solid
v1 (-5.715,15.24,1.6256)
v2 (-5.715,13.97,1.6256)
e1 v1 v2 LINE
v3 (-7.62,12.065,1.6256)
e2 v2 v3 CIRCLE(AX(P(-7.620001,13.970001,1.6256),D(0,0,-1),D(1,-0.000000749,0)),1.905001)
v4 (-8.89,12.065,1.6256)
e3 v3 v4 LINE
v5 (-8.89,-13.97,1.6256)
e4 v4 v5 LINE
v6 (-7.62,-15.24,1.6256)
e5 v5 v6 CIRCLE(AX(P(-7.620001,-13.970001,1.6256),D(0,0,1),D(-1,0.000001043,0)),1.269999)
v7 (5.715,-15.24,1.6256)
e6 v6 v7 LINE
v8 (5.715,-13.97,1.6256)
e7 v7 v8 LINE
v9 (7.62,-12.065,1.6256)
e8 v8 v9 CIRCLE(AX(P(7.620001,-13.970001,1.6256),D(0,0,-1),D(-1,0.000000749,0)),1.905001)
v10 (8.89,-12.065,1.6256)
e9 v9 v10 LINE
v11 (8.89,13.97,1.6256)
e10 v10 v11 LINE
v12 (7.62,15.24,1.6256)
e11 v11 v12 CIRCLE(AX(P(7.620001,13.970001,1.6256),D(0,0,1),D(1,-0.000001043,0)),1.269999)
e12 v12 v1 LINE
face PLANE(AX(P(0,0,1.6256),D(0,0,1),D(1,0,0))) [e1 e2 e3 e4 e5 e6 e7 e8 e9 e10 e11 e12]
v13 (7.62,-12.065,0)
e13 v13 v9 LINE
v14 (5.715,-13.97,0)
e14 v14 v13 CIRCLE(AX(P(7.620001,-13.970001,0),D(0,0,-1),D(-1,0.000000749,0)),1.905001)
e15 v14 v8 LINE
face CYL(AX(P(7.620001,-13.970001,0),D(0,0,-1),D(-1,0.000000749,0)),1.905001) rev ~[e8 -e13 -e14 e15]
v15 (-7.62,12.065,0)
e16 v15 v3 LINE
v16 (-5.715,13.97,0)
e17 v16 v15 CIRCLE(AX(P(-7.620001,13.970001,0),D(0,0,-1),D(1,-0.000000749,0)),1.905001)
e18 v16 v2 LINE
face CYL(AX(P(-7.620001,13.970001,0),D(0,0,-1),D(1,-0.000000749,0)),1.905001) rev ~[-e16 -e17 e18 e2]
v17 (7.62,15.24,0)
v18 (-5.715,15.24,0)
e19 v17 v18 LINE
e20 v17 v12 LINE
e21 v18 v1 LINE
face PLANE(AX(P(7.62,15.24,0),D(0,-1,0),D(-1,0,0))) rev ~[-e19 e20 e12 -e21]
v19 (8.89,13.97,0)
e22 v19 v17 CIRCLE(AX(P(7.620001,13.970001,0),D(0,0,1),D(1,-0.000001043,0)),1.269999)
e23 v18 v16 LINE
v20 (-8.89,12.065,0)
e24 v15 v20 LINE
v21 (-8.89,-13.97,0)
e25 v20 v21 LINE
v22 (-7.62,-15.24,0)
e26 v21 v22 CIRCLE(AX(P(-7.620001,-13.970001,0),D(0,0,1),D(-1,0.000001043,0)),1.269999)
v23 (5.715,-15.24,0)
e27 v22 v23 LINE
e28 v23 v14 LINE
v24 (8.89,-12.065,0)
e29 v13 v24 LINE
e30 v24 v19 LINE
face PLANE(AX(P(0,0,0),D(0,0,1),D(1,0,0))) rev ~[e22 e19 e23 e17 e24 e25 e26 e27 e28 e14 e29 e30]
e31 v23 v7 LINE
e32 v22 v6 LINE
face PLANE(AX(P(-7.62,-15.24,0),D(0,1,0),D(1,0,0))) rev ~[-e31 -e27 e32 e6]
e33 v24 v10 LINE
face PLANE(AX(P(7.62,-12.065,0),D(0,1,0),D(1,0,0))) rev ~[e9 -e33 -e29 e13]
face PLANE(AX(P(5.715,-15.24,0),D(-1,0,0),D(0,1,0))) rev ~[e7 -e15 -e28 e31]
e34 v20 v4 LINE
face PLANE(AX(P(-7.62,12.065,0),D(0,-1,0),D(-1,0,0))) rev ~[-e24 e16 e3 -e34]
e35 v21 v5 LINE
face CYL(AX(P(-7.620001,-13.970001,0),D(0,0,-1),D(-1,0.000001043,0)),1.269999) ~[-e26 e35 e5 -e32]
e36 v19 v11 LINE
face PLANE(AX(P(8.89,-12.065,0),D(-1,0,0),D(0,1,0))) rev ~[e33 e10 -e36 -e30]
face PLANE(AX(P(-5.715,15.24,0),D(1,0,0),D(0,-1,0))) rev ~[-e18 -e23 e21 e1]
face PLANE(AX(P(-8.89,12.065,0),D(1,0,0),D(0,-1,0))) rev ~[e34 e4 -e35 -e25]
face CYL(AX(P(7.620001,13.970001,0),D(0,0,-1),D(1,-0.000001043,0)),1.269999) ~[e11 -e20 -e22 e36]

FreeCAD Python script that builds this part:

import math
import FreeCAD as App
import Part
import Sketcher

V = App.Vector
Q = App.Units.Quantity

doc = App.newDocument("Part")
body = doc.addObject("PartDesign::Body", "Body")

sketch1 = body.newObject("Sketcher::SketchObject", "Sketch")
sketch1.AttachmentSupport = (doc.getObject("XY_Plane"), [""])
sketch1.MapMode = "FlatFace"
sketch1.addGeometry([
    Part.ArcOfCircle(Part.Circle(V(7.6, 14, 0), V(0, 0, 1), 1.3), math.radians(0), math.radians(90)),
    Part.LineSegment(V(7.6, 15.2, 0), V(-5.7, 15.2, 0)),
    Part.LineSegment(V(-5.7, 15.2, 0), V(-5.7, 14, 0)),
    Part.ArcOfCircle(Part.Circle(V(-7.6, 14, 0), V(0, 0, 1), 1.9), math.radians(-90), math.radians(0)),
    Part.LineSegment(V(-7.6, 12.1, 0), V(-8.9, 12.1, 0)),
    Part.LineSegment(V(-8.9, 12.1, 0), V(-8.9, -14, 0)),
    Part.ArcOfCircle(Part.Circle(V(-7.6, -14, 0), V(0, 0, 1), 1.3), math.radians(180), math.radians(270)),
    Part.LineSegment(V(-7.6, -15.2, 0), V(5.7, -15.2, 0)),
    Part.LineSegment(V(5.7, -15.2, 0), V(5.7, -14, 0)),
    Part.ArcOfCircle(Part.Circle(V(7.6, -14, 0), V(0, 0, 1), 1.9), math.radians(90), math.radians(180)),
    Part.LineSegment(V(7.6, -12.1, 0), V(8.9, -12.1, 0)),
    Part.LineSegment(V(8.9, -12.1, 0), V(8.9, 14, 0)),
], False)
sketch1.addConstraint([
    Sketcher.Constraint("Tangent", 0, 2, 1, 1),
    Sketcher.Constraint("Coincident", 1, 2, 2, 1),
    Sketcher.Constraint("Tangent", 2, 2, 3, 2),
    Sketcher.Constraint("Tangent", 3, 1, 4, 1),
    Sketcher.Constraint("Coincident", 4, 2, 5, 1),
    Sketcher.Constraint("Tangent", 5, 2, 6, 1),
    Sketcher.Constraint("Tangent", 6, 2, 7, 1),
    Sketcher.Constraint("Coincident", 7, 2, 8, 1),
    Sketcher.Constraint("Tangent", 8, 2, 9, 2),
    Sketcher.Constraint("Tangent", 9, 1, 10, 1),
    Sketcher.Constraint("Coincident", 10, 2, 11, 1),
    Sketcher.Constraint("Tangent", 11, 2, 0, 1),
    Sketcher.Constraint("Horizontal", 1),
    Sketcher.Constraint("Vertical", 2),
    Sketcher.Constraint("Horizontal", 4),
    Sketcher.Constraint("Vertical", 5),
    Sketcher.Constraint("Horizontal", 7),
    Sketcher.Constraint("Vertical", 8),
    Sketcher.Constraint("Horizontal", 10),
    Sketcher.Constraint("Vertical", 11),
    Sketcher.Constraint("Equal", 0, 6),
    Sketcher.Constraint("Equal", 3, 9),
    Sketcher.Constraint("Symmetric", 0, 3, 6, 3, -1, 1),
    Sketcher.Constraint("Symmetric", 3, 3, 9, 3, -1, 1),
    Sketcher.Constraint("Symmetric", 0, 3, 3, 3, -2),
    Sketcher.Constraint("Radius", 0, Q("0.0499999 in")),
    Sketcher.Constraint("Radius", 3, Q("0.0750001 in")),
    Sketcher.Constraint("DistanceX", -1, 1, 0, 3, Q("0.3000001 in")),
    Sketcher.Constraint("DistanceY", -1, 1, 0, 2, Q("0.6 in")),
])
pad1 = body.newObject("PartDesign::Pad", "Pad")
pad1.Profile = sketch1
pad1.Length = Q("0.064 in")

doc.recompute()
